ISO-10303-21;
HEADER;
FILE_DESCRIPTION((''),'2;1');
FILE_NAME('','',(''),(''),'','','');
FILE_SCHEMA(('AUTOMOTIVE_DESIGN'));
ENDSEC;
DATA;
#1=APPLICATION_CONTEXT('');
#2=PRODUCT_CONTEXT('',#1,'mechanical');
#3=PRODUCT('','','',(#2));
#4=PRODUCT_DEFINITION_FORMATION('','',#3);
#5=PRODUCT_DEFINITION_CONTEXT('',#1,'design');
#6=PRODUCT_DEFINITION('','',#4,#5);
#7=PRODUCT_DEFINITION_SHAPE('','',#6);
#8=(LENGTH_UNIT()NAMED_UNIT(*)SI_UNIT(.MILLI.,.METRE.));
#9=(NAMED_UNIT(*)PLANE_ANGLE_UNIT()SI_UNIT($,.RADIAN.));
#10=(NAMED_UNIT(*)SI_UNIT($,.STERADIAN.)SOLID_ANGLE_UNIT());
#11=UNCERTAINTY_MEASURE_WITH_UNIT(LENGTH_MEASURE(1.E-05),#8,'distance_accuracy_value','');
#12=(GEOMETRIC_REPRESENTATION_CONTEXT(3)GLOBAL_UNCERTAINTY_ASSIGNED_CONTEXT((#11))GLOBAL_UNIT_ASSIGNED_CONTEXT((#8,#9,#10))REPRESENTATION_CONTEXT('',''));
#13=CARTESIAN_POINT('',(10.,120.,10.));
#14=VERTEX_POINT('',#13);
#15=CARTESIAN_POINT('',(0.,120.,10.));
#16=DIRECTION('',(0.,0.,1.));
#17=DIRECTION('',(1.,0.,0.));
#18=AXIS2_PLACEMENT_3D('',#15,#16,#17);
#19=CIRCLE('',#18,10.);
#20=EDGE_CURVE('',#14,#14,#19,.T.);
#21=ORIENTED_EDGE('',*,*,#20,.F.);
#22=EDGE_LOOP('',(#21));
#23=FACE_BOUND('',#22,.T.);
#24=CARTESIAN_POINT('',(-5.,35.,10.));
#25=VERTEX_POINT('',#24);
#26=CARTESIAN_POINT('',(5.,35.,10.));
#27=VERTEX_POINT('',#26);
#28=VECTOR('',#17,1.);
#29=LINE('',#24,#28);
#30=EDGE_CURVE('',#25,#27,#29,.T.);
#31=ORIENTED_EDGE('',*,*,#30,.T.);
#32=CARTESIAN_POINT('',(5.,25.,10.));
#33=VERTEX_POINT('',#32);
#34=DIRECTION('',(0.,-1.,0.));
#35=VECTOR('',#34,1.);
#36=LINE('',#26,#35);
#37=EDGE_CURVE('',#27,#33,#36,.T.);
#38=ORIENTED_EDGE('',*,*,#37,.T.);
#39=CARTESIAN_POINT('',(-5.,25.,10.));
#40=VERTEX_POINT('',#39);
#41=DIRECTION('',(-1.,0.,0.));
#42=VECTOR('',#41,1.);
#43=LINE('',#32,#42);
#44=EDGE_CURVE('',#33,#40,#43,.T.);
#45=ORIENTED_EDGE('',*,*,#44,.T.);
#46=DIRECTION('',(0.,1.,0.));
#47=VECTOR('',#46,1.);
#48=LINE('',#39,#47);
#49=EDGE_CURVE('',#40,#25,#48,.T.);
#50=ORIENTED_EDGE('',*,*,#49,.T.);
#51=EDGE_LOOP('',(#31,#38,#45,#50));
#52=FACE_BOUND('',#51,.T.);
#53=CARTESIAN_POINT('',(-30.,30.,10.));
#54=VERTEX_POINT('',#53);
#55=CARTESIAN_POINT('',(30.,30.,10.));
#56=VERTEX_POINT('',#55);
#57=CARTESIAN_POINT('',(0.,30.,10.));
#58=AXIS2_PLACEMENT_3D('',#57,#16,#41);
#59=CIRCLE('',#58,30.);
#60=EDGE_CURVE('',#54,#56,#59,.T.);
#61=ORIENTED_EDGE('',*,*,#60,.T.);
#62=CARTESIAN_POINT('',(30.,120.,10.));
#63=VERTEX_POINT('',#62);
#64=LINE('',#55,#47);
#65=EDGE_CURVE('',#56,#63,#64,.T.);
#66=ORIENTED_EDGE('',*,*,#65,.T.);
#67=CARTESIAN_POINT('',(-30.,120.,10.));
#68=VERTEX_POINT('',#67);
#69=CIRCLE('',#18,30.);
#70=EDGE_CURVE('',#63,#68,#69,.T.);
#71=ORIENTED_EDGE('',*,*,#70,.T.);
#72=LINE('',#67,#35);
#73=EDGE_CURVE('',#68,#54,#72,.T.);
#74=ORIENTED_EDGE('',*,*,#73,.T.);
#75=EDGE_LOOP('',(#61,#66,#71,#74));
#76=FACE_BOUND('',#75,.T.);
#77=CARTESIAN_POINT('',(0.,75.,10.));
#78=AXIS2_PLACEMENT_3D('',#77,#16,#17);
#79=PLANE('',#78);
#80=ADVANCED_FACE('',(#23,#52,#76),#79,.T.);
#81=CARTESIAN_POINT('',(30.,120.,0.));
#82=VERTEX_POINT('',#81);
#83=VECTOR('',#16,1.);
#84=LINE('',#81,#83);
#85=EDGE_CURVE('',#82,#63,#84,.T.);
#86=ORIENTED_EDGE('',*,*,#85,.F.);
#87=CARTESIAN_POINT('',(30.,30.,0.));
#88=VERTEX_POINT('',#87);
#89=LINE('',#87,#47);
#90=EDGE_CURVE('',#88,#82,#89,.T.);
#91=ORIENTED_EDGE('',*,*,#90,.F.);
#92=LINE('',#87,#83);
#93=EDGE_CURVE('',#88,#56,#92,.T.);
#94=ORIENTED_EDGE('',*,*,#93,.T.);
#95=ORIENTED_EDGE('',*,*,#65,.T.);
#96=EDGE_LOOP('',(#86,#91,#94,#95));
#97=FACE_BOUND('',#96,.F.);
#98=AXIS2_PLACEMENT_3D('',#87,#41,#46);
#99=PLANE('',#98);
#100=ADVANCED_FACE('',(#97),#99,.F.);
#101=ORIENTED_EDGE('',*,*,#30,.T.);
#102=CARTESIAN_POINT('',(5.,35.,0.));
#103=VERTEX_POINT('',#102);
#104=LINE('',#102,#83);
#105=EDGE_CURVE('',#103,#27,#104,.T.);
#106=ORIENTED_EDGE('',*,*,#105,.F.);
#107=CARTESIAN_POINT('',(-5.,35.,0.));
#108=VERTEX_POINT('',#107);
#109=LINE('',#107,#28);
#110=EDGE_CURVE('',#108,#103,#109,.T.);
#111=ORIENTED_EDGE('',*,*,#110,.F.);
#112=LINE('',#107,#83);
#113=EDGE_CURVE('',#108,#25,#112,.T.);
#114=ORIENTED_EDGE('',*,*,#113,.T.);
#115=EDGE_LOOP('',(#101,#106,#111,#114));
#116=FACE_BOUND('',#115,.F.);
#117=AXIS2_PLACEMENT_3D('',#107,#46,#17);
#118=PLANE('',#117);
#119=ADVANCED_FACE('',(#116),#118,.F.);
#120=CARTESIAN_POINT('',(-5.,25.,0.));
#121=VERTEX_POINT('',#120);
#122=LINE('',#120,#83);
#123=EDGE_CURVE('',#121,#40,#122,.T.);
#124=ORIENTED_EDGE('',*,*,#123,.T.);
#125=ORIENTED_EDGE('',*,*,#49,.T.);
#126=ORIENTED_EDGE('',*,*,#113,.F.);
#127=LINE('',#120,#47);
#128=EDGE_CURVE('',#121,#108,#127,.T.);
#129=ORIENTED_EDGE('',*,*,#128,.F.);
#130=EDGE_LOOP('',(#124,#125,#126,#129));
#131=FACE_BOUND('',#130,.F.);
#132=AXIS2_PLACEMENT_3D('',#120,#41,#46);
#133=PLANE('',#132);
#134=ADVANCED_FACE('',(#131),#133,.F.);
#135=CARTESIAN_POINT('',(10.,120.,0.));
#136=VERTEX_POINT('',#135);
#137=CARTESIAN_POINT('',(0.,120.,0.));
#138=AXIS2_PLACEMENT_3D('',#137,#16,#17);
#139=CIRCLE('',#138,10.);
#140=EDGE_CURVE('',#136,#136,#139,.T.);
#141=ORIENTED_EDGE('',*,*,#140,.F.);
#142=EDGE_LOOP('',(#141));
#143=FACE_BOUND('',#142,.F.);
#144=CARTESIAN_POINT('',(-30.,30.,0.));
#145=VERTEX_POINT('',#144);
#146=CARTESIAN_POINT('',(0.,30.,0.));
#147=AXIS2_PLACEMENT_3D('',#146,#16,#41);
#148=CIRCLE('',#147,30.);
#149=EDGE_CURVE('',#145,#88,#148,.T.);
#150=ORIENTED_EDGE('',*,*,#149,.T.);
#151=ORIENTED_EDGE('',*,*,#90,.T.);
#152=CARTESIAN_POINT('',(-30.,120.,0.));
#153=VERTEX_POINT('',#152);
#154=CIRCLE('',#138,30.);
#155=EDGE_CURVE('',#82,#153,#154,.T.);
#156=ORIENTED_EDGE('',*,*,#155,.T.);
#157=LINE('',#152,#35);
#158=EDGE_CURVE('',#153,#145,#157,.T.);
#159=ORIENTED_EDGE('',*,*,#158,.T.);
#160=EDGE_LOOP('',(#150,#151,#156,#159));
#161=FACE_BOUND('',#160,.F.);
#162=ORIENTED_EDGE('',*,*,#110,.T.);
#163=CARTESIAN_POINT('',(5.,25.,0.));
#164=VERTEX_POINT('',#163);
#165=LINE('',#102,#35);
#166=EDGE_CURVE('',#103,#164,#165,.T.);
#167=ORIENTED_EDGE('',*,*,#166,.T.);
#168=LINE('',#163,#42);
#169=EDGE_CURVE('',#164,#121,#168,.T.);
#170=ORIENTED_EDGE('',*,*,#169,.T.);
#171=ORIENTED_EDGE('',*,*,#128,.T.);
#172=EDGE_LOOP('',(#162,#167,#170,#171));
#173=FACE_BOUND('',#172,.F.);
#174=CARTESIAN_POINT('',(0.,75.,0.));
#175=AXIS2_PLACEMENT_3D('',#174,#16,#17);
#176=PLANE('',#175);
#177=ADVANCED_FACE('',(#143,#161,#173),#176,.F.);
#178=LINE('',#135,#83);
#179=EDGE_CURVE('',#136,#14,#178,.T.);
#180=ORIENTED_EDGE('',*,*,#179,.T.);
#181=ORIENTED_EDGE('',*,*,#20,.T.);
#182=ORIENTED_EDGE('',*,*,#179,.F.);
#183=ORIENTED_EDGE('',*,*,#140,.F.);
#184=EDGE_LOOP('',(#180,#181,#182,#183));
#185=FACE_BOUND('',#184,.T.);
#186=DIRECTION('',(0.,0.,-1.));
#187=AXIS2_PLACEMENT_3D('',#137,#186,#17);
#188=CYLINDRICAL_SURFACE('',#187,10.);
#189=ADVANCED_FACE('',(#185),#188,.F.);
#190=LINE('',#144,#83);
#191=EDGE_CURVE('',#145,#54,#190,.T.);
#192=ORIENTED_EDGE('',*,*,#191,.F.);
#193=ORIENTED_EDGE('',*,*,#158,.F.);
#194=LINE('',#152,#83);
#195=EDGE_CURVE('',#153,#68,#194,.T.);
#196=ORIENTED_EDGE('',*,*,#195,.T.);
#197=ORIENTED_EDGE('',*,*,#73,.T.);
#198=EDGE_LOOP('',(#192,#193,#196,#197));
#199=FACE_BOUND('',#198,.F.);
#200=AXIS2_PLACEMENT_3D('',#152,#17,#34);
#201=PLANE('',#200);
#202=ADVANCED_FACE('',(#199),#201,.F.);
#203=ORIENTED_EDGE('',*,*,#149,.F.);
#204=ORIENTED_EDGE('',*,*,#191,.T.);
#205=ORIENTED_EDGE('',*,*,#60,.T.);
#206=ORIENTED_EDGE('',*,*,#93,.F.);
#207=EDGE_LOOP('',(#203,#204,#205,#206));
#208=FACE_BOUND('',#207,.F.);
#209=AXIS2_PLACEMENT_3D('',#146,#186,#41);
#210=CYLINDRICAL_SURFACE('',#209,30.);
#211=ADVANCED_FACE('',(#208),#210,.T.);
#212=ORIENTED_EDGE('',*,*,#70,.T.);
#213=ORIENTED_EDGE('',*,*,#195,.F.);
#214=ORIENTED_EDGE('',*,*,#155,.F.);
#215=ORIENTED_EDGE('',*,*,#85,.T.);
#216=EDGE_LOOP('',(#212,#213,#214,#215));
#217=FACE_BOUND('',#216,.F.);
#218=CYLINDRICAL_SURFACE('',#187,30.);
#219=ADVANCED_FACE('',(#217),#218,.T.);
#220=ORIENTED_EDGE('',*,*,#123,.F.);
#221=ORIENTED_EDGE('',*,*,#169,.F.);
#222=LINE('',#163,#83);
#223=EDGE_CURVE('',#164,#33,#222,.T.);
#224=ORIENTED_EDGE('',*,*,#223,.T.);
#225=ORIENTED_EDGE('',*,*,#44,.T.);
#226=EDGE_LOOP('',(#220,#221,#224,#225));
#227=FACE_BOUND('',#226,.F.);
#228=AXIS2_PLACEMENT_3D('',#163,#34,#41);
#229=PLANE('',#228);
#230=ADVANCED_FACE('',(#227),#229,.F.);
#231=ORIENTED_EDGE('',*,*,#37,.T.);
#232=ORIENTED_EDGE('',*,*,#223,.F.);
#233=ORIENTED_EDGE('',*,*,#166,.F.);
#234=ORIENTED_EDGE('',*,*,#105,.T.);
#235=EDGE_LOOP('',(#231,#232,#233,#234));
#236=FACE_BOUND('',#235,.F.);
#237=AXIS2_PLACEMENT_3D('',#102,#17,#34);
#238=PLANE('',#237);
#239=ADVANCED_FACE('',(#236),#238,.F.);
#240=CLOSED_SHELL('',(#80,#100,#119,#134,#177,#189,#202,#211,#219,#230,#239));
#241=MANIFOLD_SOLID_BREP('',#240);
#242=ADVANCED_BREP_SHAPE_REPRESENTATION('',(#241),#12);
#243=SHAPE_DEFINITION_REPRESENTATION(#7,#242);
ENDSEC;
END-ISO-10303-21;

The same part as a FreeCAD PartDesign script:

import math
import FreeCAD as App
import Part
import Sketcher
from FreeCAD import Vector
Q = App.Units.Quantity

doc = App.newDocument("Part")
params = doc.addObject("Spreadsheet::Sheet", "Params")
for row, (alias, value) in enumerate([
    ("sketch1_diameter", "20 mm"),
    ("sketch1_radius", "30 mm"),
    ("sketch1_width", "10 mm"),
    ("sketch1_height", "90 mm"),
    ("pad1_length", "10 mm"),
], start=1):
    params.set(f"A{row}", alias)
    params.set(f"B{row}", "=" + value)
    params.setAlias(f"B{row}", alias)

body = doc.addObject("PartDesign::Body", "Body")

# Sketch on XY plane
sketch1 = body.newObject("Sketcher::SketchObject", "Sketch")
sketch1.AttachmentSupport = (doc.getObject("XY_Plane"), [""])
sketch1.MapMode = "FlatFace"
sketch1.addGeometry([
    Part.LineSegment(Vector(-30, 120, 0), Vector(-30, 30, 0)),  # 0
    Part.ArcOfCircle(Part.Circle(Vector(0, 30, 0), Vector(0, 0, 1), 30), math.radians(180), math.radians(360)),  # 1
    Part.LineSegment(Vector(30, 30, 0), Vector(30, 120, 0)),  # 2
    Part.ArcOfCircle(Part.Circle(Vector(0, 120, 0), Vector(0, 0, 1), 30), math.radians(0), math.radians(180)),  # 3
    Part.LineSegment(Vector(5, 25, 0), Vector(-5, 25, 0)),  # 4
    Part.LineSegment(Vector(-5, 25, 0), Vector(-5, 35, 0)),  # 5
    Part.LineSegment(Vector(-5, 35, 0), Vector(5, 35, 0)),  # 6
    Part.LineSegment(Vector(5, 35, 0), Vector(5, 25, 0)),  # 7
    Part.Circle(Vector(0, 120, 0), Vector(0, 0, 1), 10),  # 8
], False)
sketch1.addConstraint([
    Sketcher.Constraint("Tangent", 0, 2, 1, 1),
    Sketcher.Constraint("Tangent", 1, 2, 2, 1),
    Sketcher.Constraint("Tangent", 2, 2, 3, 1),
    Sketcher.Constraint("Tangent", 3, 2, 0, 1),
    Sketcher.Constraint("Coincident", 4, 2, 5, 1),
    Sketcher.Constraint("Coincident", 5, 2, 6, 1),
    Sketcher.Constraint("Coincident", 6, 2, 7, 1),
    Sketcher.Constraint("Coincident", 7, 2, 4, 1),
    Sketcher.Constraint("Vertical", 0),
    Sketcher.Constraint("Vertical", 2),
    Sketcher.Constraint("Horizontal", 4),
    Sketcher.Constraint("Vertical", 5),
    Sketcher.Constraint("Horizontal", 6),
    Sketcher.Constraint("Vertical", 7),
    Sketcher.Constraint("Coincident", 8, 3, 3, 3),
    Sketcher.Constraint("PointOnObject", 1, 3, -2),
    Sketcher.Constraint("Equal", 6, 5),
    Sketcher.Constraint("Diameter", 8, Q("20 mm")),
    Sketcher.Constraint("Radius", 1, Q("30 mm")),
    Sketcher.Constraint("DistanceX", 4, 2, 4, 1, Q("10 mm")),
    Sketcher.Constraint("DistanceY", 0, 2, 0, 1, Q("90 mm")),
    Sketcher.Constraint("DistanceY", -1, 1, 1, 3, Q("30 mm")),
    Sketcher.Constraint("DistanceX", 4, 2, -1, 1, Q("5 mm")),
    Sketcher.Constraint("DistanceY", -1, 1, 4, 2, Q("25 mm")),
])
sketch1.setExpression("Constraints[17]", "Params.sketch1_diameter")
sketch1.setExpression("Constraints[18]", "Params.sketch1_radius")
sketch1.setExpression("Constraints[19]", "Params.sketch1_width")
sketch1.setExpression("Constraints[20]", "Params.sketch1_height")
pad1 = body.newObject("PartDesign::Pad", "Pad")
pad1.Profile = sketch1
pad1.setExpression("Length", "Params.pad1_length")

doc.recompute()
